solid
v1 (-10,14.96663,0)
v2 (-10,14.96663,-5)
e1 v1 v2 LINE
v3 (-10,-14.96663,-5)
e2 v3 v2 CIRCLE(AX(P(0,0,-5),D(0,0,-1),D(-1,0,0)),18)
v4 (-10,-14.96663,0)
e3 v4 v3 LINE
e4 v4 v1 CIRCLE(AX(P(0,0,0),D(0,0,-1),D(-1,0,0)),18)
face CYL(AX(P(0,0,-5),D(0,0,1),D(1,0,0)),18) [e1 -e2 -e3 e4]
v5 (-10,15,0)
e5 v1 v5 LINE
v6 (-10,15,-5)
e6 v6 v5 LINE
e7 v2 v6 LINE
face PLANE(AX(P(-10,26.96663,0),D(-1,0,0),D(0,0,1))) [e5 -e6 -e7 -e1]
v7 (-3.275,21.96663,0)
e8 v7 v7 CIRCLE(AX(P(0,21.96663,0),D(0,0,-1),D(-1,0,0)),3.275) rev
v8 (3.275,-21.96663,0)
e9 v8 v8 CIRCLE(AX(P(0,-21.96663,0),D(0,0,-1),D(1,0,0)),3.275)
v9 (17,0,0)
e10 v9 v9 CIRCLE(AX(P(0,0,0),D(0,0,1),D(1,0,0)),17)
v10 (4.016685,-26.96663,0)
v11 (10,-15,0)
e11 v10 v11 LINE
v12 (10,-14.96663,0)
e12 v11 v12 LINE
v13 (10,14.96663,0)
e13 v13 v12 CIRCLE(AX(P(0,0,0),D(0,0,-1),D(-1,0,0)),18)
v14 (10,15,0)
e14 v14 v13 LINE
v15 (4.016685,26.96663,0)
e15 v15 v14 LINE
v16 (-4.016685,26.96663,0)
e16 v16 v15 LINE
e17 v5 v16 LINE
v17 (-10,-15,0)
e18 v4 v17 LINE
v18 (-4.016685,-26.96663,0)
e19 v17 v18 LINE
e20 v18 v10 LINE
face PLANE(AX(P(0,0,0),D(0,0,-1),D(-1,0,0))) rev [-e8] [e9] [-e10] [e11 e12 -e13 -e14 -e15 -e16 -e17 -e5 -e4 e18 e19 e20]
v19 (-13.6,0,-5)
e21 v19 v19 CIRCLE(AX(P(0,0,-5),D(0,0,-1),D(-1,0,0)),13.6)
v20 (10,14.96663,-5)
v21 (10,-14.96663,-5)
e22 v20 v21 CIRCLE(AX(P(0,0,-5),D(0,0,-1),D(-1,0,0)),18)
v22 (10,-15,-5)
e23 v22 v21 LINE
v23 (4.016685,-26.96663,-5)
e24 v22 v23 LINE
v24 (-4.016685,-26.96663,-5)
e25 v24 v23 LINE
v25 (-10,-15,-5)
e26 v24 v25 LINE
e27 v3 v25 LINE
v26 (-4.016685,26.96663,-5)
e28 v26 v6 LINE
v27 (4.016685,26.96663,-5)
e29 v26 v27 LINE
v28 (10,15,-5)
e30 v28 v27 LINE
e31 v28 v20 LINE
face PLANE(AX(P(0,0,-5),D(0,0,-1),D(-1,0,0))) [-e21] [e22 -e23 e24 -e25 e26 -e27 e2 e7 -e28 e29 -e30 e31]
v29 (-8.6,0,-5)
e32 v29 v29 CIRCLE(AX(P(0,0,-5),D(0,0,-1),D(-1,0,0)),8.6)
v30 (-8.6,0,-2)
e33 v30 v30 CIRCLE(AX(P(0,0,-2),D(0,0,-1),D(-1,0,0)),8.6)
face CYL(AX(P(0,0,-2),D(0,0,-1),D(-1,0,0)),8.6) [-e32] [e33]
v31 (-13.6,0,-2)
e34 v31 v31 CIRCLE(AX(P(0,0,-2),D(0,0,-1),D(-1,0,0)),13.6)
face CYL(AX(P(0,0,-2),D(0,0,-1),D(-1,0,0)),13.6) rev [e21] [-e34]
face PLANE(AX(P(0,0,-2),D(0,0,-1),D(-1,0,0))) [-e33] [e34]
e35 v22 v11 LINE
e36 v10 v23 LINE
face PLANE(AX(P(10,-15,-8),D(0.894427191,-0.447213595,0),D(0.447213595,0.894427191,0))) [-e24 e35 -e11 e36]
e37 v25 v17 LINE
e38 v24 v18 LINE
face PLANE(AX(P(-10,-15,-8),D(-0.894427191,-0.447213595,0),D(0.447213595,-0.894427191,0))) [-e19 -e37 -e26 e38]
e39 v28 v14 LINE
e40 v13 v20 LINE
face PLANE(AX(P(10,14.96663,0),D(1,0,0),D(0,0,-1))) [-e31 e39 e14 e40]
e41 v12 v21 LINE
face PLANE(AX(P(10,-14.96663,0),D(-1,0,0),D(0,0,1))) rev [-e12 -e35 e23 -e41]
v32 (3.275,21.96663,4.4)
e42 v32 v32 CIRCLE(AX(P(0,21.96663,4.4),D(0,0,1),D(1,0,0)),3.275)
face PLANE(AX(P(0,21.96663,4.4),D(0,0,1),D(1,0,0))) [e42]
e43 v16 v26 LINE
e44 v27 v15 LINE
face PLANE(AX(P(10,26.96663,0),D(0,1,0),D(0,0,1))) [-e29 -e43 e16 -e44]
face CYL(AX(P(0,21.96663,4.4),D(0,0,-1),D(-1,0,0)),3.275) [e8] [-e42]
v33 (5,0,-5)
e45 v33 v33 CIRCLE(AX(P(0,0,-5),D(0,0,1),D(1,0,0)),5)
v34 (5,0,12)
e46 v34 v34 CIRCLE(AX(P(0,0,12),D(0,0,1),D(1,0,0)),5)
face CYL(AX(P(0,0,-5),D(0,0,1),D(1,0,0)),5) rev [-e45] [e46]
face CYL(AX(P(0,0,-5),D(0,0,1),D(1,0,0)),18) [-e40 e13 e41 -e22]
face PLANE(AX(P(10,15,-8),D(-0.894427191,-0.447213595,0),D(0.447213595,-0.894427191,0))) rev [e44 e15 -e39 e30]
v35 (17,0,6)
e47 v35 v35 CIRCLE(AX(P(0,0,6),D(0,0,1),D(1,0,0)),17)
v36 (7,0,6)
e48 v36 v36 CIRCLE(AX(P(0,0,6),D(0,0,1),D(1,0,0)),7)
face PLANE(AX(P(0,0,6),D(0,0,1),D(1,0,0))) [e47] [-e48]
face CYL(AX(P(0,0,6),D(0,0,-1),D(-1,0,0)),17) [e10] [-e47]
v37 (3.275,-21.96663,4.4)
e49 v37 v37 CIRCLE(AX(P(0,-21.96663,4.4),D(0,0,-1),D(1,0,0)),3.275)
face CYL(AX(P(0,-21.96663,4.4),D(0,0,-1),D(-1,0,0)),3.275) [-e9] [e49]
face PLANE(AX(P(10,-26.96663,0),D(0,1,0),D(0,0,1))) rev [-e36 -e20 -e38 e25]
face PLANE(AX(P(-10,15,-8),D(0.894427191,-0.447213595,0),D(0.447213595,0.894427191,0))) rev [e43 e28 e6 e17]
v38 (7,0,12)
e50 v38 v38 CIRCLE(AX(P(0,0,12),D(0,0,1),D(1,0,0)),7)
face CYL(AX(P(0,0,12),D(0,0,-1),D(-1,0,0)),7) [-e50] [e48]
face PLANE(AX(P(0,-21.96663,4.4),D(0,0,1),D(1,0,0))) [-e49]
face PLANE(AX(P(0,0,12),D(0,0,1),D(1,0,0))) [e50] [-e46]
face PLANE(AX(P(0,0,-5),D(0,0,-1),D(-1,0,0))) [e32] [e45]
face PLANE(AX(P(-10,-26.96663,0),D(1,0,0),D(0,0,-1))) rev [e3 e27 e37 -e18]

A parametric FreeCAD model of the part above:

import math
import FreeCAD as App
import Part
import Sketcher
from FreeCAD import Vector
Q = App.Units.Quantity


def add_polygon(sketch, points):
    """Adds a closed chain of lines whose ends are joined by coincident constraints."""
    first, n = sketch.GeometryCount, len(points)
    for a, b in zip(points, points[1:] + points[:1]):
        sketch.addGeometry(Part.LineSegment(App.Vector(*a, 0), App.Vector(*b, 0)), False)
    for i in range(n):
        sketch.addConstraint(Sketcher.Constraint("Coincident", first + i, 2, first + (i + 1) % n, 1))

doc = App.newDocument("Part")
body = doc.addObject("PartDesign::Body", "Body")

sketch1 = body.newObject("Sketcher::SketchObject", "Sketch")
sketch1.AttachmentSupport = (doc.getObject("XY_Plane"), [""])
sketch1.MapMode = "FlatFace"
sketch1.addGeometry(Part.Circle(Vector(0, 0, 0), Vector(0, 0, 1), 17), False)
sketch1.addConstraint([
    Sketcher.Constraint("Coincident", 0, 3, -1, 1),
    Sketcher.Constraint("Diameter", 0, Q("34 mm")),
])
pad1 = body.newObject("PartDesign::Pad", "Pad")
pad1.Profile = sketch1
pad1.Length = 6

sketch2 = body.newObject("Sketcher::SketchObject", "Sketch001")
sketch2.AttachmentSupport = (doc.getObject("XY_Plane"), [""])
sketch2.MapMode = "FlatFace"
sketch2.AttachmentOffset = App.Placement(Vector(0, 0, 6), App.Rotation())
sketch2.addGeometry(Part.Circle(Vector(0, 0, 0), Vector(0, 0, 1), 7), False)
sketch2.addConstraint([
    Sketcher.Constraint("Coincident", 0, 3, -1, 1),
    Sketcher.Constraint("Diameter", 0, Q("14 mm")),
])
pad2 = body.newObject("PartDesign::Pad", "Pad001")
pad2.Profile = sketch2
pad2.Length = 6

sketch3 = body.newObject("Sketcher::SketchObject", "Sketch002")
sketch3.AttachmentSupport = (doc.getObject("XY_Plane"), [""])
sketch3.MapMode = "FlatFace"
sketch3.addGeometry(Part.Circle(Vector(0, 0, 0), Vector(0, 0, 1), 18), False)
sketch3.addConstraint([
    Sketcher.Constraint("Coincident", 0, 3, -1, 1),
    Sketcher.Constraint("Diameter", 0, Q("36 mm")),
])
pad3 = body.newObject("PartDesign::Pad", "Pad002")
pad3.Profile = sketch3
pad3.Length = 5
pad3.Reversed = True

sketch4 = body.newObject("Sketcher::SketchObject", "Sketch003")
sketch4.AttachmentSupport = (doc.getObject("XY_Plane"), [""])
sketch4.MapMode = "FlatFace"
sketch4.addGeometry([
    Part.LineSegment(Vector(10, 27, 0), Vector(10, 15, 0)),
    Part.ArcOfCircle(Part.Circle(Vector(0, 0, 0), Vector(0, 0, 1), 18), math.radians(56), math.radians(124)),
    Part.LineSegment(Vector(-10, 15, 0), Vector(-10, 27, 0)),
    Part.LineSegment(Vector(-10, 27, 0), Vector(10, 27, 0)),
], False)
sketch4.addConstraint([
    Sketcher.Constraint("Coincident", 0, 2, 1, 1),
    Sketcher.Constraint("Coincident", 1, 2, 2, 1),
    Sketcher.Constraint("Coincident", 2, 2, 3, 1),
    Sketcher.Constraint("Coincident", 3, 2, 0, 1),
    Sketcher.Constraint("Vertical", 0),
    Sketcher.Constraint("Vertical", 2),
    Sketcher.Constraint("Horizontal", 3),
    Sketcher.Constraint("Coincident", 1, 3, -1, 1),
    Sketcher.Constraint("Horizontal", 0, 2, 1, 2),
    Sketcher.Constraint("Radius", 1, Q("18 mm")),
    Sketcher.Constraint("DistanceX", 3, 1, 3, 2, Q("20 mm")),
    Sketcher.Constraint("DistanceY", 0, 2, 0, 1, Q("12 mm")),
])
pad4 = body.newObject("PartDesign::Pad", "Pad003")
pad4.Profile = sketch4
pad4.Length = 5
pad4.Reversed = True

sketch5 = body.newObject("Sketcher::SketchObject", "Sketch004")
sketch5.AttachmentSupport = (doc.getObject("XY_Plane"), [""])
sketch5.MapMode = "FlatFace"
add_polygon(sketch5, [(-10, 27), (-10, 15), (-4, 27)])
add_polygon(sketch5, [(10, 27), (4, 27), (10, 15)])
sketch5.addConstraint([
    Sketcher.Constraint("Vertical", 0),
    Sketcher.Constraint("Horizontal", 2),
    Sketcher.Constraint("Horizontal", 3),
    Sketcher.Constraint("Vertical", 5),
    Sketcher.Constraint("Symmetric", 1, 2, 3, 2, -2),
    Sketcher.Constraint("Symmetric", 0, 2, 4, 2, -2),
    Sketcher.Constraint("DistanceX", 2, 2, 2, 1, Q("6 mm")),
    Sketcher.Constraint("DistanceY", 0, 2, 0, 1, Q("12 mm")),
    Sketcher.Constraint("DistanceX", 0, 2, -1, 1, Q("10 mm")),
    Sketcher.Constraint("DistanceY", -1, 1, 0, 2, Q("15 mm")),
])
pocket1 = body.newObject("PartDesign::Pocket", "Pocket")
pocket1.Profile = sketch5
pocket1.Length = 8

sketch6 = body.newObject("Sketcher::SketchObject", "Sketch005")
sketch6.AttachmentSupport = (doc.getObject("XY_Plane"), [""])
sketch6.MapMode = "FlatFace"
sketch6.addGeometry(Part.Circle(Vector(0, 22, 0), Vector(0, 0, 1), 3.3), False)
sketch6.addConstraint([
    Sketcher.Constraint("PointOnObject", 0, 3, -2),
    Sketcher.Constraint("Diameter", 0, Q("6.55 mm")),
    Sketcher.Constraint("DistanceY", -1, 1, 0, 3, Q("21.96663 mm")),
])
pad5 = body.newObject("PartDesign::Pad", "Pad004")
pad5.Profile = sketch6
pad5.Length = 4.4
doc.recompute()

mirrored = body.newObject("PartDesign::Mirrored", "Mirrored")
mirrored.Originals = [pad4, pocket1, pad5]
mirrored.MirrorPlane = (doc.getObject("XZ_Plane"), [""])
body.Tip = mirrored

sketch7 = body.newObject("Sketcher::SketchObject", "Sketch006")
sketch7.AttachmentSupport = (doc.getObject("XY_Plane"), [""])
sketch7.MapMode = "FlatFace"
sketch7.AttachmentOffset = App.Placement(Vector(0, 0, 12), App.Rotation())
sketch7.addGeometry(Part.Circle(Vector(0, 0, 0), Vector(0, 0, 1), 5), False)
sketch7.addConstraint([
    Sketcher.Constraint("Coincident", 0, 3, -1, 1),
    Sketcher.Constraint("Diameter", 0, Q("10 mm")),
])
pocket2 = body.newObject("PartDesign::Pocket", "Pocket001")
pocket2.Profile = sketch7
pocket2.Type = "ThroughAll"

sketch8 = body.newObject("Sketcher::SketchObject", "Sketch007")
sketch8.AttachmentSupport = (doc.getObject("XY_Plane"), [""])
sketch8.MapMode = "FlatFace"
sketch8.AttachmentOffset = App.Placement(Vector(0, 0, -5), App.Rotation())
sketch8.addGeometry([
    Part.Circle(Vector(0, 0, 0), Vector(0, 0, 1), 14),
    Part.Circle(Vector(0, 0, 0), Vector(0, 0, 1), 9),
], False)
sketch8.addConstraint([
    Sketcher.Constraint("Coincident", 0, 3, -1, 1),
    Sketcher.Constraint("Coincident", 1, 3, -1, 1),
    Sketcher.Constraint("Diameter", 0, Q("27.2 mm")),
    Sketcher.Constraint("Diameter", 1, Q("17.2 mm")),
])
pocket3 = body.newObject("PartDesign::Pocket", "Pocket002")
pocket3.Profile = sketch8
pocket3.Length = 3
pocket3.Reversed = True

doc.recompute()
